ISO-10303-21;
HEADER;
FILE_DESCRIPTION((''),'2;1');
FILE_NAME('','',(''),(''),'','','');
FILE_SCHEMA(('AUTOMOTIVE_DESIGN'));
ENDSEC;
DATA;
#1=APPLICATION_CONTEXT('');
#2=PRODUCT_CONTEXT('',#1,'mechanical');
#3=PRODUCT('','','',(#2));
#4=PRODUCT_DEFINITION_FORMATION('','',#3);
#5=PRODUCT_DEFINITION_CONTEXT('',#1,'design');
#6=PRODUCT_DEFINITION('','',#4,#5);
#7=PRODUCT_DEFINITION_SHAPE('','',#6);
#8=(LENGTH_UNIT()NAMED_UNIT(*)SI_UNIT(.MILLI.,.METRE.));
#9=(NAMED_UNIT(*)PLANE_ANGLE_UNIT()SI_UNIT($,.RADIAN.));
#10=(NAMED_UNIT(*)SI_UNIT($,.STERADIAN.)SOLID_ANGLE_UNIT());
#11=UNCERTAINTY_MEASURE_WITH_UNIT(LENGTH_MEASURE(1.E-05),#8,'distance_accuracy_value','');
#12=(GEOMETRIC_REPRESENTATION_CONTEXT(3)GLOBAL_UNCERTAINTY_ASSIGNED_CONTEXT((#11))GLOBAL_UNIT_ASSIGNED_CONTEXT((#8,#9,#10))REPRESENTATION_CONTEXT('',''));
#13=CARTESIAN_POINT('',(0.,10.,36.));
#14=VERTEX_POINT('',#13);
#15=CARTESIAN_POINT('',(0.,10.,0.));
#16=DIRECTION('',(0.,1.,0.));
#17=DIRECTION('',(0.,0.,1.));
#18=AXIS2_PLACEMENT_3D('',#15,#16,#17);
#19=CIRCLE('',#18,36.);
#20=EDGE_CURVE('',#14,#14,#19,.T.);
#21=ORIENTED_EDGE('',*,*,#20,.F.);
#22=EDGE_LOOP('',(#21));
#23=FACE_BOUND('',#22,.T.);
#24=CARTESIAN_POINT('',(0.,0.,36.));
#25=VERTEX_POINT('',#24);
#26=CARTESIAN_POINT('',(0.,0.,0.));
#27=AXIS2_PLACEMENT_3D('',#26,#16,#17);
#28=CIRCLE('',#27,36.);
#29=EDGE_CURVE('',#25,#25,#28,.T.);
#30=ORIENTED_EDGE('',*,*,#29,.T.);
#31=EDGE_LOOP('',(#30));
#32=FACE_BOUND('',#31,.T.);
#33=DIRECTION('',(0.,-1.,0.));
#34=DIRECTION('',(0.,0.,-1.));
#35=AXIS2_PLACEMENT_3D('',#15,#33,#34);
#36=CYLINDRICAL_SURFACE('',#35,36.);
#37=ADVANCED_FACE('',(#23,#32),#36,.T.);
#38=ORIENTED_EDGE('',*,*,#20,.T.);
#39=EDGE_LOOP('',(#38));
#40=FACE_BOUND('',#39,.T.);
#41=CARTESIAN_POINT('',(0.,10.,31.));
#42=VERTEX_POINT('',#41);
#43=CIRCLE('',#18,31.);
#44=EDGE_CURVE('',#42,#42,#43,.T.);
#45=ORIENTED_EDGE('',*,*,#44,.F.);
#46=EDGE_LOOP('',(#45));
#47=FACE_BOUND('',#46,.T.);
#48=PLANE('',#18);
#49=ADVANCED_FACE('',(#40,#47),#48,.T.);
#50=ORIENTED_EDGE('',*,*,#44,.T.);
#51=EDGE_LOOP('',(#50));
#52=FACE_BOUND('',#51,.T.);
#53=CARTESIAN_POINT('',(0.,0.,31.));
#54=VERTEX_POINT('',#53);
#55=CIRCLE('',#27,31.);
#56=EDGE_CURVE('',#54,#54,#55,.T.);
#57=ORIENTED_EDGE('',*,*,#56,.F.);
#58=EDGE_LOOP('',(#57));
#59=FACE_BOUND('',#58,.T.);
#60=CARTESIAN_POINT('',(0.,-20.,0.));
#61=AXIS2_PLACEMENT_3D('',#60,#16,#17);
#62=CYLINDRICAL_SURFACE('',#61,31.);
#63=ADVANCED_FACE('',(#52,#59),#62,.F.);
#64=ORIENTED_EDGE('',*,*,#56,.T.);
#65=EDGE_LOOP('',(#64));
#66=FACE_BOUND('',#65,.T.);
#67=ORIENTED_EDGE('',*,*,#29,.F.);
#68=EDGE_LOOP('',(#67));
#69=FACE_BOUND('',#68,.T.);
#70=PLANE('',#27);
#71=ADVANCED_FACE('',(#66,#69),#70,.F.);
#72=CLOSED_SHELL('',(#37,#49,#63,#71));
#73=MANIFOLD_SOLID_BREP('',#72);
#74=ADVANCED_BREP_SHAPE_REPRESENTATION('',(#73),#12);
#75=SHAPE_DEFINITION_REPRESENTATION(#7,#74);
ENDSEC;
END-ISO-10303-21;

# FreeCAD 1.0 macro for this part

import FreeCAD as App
import Part
import Sketcher

V = App.Vector
Q = App.Units.Quantity

doc = App.newDocument("Part")
body = doc.addObject("PartDesign::Body", "Body")

# Sketch on XZ plane
sketch1 = body.newObject("Sketcher::SketchObject", "Sketch")
sketch1.AttachmentSupport = (doc.getObject("XZ_Plane"), [""])
sketch1.MapMode = "FlatFace"
sketch1.addGeometry(Part.Circle(V(0, 0, 0), V(0, 0, 1), 36), False)
sketch1.addConstraint(Sketcher.Constraint("Coincident", 0, 3, -1, 1))
sketch1.addConstraint(Sketcher.Constraint("Diameter", 0, Q("72 mm")))
pad1 = body.newObject("PartDesign::Pad", "Pad")
pad1.Profile = sketch1
pad1.Length = 10
pad1.Reversed = True

# Sketch on XZ plane
sketch2 = body.newObject("Sketcher::SketchObject", "Sketch001")
sketch2.AttachmentSupport = (doc.getObject("XZ_Plane"), [""])
sketch2.MapMode = "FlatFace"
sketch2.AttachmentOffset = App.Placement(V(0, 0, -10), App.Rotation())
sketch2.addGeometry(Part.Circle(V(0, 0, 0), V(0, 0, 1), 31), False)
sketch2.addConstraint(Sketcher.Constraint("Coincident", 0, 3, -1, 1))
sketch2.addConstraint(Sketcher.Constraint("Diameter", 0, Q("62 mm")))
pocket1 = body.newObject("PartDesign::Pocket", "Pocket")
pocket1.Profile = sketch2
pocket1.Length = 30
pocket1.Reversed = True

doc.recompute()
